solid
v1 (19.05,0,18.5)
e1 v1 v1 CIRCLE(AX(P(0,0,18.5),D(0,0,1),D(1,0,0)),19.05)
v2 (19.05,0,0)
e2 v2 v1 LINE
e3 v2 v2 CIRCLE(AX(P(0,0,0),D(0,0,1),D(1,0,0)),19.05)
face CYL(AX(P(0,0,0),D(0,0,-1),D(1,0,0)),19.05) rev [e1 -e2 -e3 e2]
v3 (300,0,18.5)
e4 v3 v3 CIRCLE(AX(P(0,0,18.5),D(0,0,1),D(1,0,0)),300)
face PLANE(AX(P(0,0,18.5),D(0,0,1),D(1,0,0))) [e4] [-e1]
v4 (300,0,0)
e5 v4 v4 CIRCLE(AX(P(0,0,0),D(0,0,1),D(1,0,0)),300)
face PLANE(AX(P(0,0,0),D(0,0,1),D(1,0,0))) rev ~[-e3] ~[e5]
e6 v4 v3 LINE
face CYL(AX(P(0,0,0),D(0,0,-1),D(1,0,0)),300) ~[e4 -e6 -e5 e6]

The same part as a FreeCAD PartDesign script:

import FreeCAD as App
import Part
import Sketcher

V = App.Vector

doc = App.newDocument("Part")
body = doc.addObject("PartDesign::Body", "Body")

sketch1 = body.newObject("Sketcher::SketchObject", "Sketch")
sketch1.AttachmentSupport = (doc.getObject("XY_Plane"), [""])
sketch1.MapMode = "FlatFace"
sketch1.addGeometry([
    Part.Circle(V(0, 0, 0), V(0, 0, 1), 300),
    Part.Circle(V(0, 0, 0), V(0, 0, 1), 19),
], False)
sketch1.addConstraint([
    Sketcher.Constraint("Coincident", 0, 3, -1, 1),
    Sketcher.Constraint("Coincident", 1, 3, -1, 1),
    Sketcher.Constraint("Diameter", 0, 600.0),
    Sketcher.Constraint("Diameter", 1, 38.1),
])
pad1 = body.newObject("PartDesign::Pad", "Pad")
pad1.Profile = sketch1
pad1.Length = 18.5

doc.recompute()
